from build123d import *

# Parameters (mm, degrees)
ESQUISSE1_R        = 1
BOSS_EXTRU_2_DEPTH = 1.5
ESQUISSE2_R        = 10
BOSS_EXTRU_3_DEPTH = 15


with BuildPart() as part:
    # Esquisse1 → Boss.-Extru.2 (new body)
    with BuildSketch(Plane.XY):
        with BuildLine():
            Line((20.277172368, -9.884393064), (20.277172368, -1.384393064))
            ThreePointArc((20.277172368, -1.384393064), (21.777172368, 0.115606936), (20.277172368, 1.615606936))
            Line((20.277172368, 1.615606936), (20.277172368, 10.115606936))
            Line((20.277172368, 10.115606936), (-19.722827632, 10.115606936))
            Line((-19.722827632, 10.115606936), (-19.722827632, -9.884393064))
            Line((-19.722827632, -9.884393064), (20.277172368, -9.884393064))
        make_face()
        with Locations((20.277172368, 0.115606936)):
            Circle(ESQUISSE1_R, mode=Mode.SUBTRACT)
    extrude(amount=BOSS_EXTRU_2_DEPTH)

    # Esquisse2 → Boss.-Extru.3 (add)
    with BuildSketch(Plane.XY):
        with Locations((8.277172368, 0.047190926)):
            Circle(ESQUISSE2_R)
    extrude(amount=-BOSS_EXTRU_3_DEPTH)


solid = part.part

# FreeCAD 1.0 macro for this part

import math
import FreeCAD as App
import Part
import Sketcher
from FreeCAD import Vector

doc = App.newDocument("Part")
body = doc.addObject("PartDesign::Body", "Body")

sketch1 = body.newObject("Sketcher::SketchObject", "Sketch")
sketch1.AttachmentSupport = (doc.getObject("XY_Plane"), [""])
sketch1.MapMode = "FlatFace"
sketch1.addGeometry([
    Part.LineSegment(Vector(20.277172, -9.884393, 0), Vector(20.277172, -1.384393, 0)),
    Part.ArcOfCircle(Part.Circle(Vector(20.277172, 0.115607, 0), Vector(0, 0, 1), 1.5), math.radians(-90), math.radians(90)),
    Part.LineSegment(Vector(20.277172, 1.615607, 0), Vector(20.277172, 10.115607, 0)),
    Part.LineSegment(Vector(20.277172, 10.115607, 0), Vector(-19.722828, 10.115607, 0)),
    Part.LineSegment(Vector(-19.722828, 10.115607, 0), Vector(-19.722828, -9.884393, 0)),
    Part.LineSegment(Vector(-19.722828, -9.884393, 0), Vector(20.277172, -9.884393, 0)),
    Part.Circle(Vector(20.277172, 0.115607, 0), Vector(0, 0, 1), 1),
], False)
sketch1.addConstraint([
    Sketcher.Constraint("Coincident", 0, 2, 1, 1),
    Sketcher.Constraint("Coincident", 1, 2, 2, 1),
    Sketcher.Constraint("Coincident", 2, 2, 3, 1),
    Sketcher.Constraint("Coincident", 3, 2, 4, 1),
    Sketcher.Constraint("Coincident", 4, 2, 5, 1),
    Sketcher.Constraint("Coincident", 5, 2, 0, 1),
    Sketcher.Constraint("Vertical", 0),
    Sketcher.Constraint("Vertical", 2),
    Sketcher.Constraint("Horizontal", 3),
    Sketcher.Constraint("Vertical", 4),
    Sketcher.Constraint("Horizontal", 5),
    Sketcher.Constraint("Coincident", 6, 3, 1, 3),
    Sketcher.Constraint("Vertical", 6, 3, 0, 2),
    Sketcher.Constraint("Vertical", 0, 2, 1, 2),
    Sketcher.Constraint("Equal", 0, 2),
    Sketcher.Constraint("Diameter", 6, 2.0),
    Sketcher.Constraint("Radius", 1, 1.5),
    Sketcher.Constraint("DistanceX", 3, 2, 3, 1, 40.0),
    Sketcher.Constraint("DistanceY", 4, 2, 4, 1, 20.0),
    Sketcher.Constraint("DistanceX", -1, 1, 1, 3, 20.277172),
    Sketcher.Constraint("DistanceY", -1, 1, 1, 3, 0.115607),
])
pad1 = body.newObject("PartDesign::Pad", "Pad")
pad1.Profile = sketch1
pad1.Length = 1.5

sketch2 = body.newObject("Sketcher::SketchObject", "Sketch001")
sketch2.AttachmentSupport = (doc.getObject("XY_Plane"), [""])
sketch2.MapMode = "FlatFace"
sketch2.addGeometry(Part.Circle(Vector(8.277172, 0.047191, 0), Vector(0, 0, 1), 10), False)
sketch2.addConstraint([
    Sketcher.Constraint("Diameter", 0, 20.0),
    Sketcher.Constraint("DistanceY", -1, 1, 0, 3, 0.047191),
    Sketcher.Constraint("DistanceX", -1, 1, 0, 3, 8.277172),
])
pad2 = body.newObject("PartDesign::Pad", "Pad001")
pad2.Profile = sketch2
pad2.Length = 15
pad2.Reversed = True

doc.recompute()
